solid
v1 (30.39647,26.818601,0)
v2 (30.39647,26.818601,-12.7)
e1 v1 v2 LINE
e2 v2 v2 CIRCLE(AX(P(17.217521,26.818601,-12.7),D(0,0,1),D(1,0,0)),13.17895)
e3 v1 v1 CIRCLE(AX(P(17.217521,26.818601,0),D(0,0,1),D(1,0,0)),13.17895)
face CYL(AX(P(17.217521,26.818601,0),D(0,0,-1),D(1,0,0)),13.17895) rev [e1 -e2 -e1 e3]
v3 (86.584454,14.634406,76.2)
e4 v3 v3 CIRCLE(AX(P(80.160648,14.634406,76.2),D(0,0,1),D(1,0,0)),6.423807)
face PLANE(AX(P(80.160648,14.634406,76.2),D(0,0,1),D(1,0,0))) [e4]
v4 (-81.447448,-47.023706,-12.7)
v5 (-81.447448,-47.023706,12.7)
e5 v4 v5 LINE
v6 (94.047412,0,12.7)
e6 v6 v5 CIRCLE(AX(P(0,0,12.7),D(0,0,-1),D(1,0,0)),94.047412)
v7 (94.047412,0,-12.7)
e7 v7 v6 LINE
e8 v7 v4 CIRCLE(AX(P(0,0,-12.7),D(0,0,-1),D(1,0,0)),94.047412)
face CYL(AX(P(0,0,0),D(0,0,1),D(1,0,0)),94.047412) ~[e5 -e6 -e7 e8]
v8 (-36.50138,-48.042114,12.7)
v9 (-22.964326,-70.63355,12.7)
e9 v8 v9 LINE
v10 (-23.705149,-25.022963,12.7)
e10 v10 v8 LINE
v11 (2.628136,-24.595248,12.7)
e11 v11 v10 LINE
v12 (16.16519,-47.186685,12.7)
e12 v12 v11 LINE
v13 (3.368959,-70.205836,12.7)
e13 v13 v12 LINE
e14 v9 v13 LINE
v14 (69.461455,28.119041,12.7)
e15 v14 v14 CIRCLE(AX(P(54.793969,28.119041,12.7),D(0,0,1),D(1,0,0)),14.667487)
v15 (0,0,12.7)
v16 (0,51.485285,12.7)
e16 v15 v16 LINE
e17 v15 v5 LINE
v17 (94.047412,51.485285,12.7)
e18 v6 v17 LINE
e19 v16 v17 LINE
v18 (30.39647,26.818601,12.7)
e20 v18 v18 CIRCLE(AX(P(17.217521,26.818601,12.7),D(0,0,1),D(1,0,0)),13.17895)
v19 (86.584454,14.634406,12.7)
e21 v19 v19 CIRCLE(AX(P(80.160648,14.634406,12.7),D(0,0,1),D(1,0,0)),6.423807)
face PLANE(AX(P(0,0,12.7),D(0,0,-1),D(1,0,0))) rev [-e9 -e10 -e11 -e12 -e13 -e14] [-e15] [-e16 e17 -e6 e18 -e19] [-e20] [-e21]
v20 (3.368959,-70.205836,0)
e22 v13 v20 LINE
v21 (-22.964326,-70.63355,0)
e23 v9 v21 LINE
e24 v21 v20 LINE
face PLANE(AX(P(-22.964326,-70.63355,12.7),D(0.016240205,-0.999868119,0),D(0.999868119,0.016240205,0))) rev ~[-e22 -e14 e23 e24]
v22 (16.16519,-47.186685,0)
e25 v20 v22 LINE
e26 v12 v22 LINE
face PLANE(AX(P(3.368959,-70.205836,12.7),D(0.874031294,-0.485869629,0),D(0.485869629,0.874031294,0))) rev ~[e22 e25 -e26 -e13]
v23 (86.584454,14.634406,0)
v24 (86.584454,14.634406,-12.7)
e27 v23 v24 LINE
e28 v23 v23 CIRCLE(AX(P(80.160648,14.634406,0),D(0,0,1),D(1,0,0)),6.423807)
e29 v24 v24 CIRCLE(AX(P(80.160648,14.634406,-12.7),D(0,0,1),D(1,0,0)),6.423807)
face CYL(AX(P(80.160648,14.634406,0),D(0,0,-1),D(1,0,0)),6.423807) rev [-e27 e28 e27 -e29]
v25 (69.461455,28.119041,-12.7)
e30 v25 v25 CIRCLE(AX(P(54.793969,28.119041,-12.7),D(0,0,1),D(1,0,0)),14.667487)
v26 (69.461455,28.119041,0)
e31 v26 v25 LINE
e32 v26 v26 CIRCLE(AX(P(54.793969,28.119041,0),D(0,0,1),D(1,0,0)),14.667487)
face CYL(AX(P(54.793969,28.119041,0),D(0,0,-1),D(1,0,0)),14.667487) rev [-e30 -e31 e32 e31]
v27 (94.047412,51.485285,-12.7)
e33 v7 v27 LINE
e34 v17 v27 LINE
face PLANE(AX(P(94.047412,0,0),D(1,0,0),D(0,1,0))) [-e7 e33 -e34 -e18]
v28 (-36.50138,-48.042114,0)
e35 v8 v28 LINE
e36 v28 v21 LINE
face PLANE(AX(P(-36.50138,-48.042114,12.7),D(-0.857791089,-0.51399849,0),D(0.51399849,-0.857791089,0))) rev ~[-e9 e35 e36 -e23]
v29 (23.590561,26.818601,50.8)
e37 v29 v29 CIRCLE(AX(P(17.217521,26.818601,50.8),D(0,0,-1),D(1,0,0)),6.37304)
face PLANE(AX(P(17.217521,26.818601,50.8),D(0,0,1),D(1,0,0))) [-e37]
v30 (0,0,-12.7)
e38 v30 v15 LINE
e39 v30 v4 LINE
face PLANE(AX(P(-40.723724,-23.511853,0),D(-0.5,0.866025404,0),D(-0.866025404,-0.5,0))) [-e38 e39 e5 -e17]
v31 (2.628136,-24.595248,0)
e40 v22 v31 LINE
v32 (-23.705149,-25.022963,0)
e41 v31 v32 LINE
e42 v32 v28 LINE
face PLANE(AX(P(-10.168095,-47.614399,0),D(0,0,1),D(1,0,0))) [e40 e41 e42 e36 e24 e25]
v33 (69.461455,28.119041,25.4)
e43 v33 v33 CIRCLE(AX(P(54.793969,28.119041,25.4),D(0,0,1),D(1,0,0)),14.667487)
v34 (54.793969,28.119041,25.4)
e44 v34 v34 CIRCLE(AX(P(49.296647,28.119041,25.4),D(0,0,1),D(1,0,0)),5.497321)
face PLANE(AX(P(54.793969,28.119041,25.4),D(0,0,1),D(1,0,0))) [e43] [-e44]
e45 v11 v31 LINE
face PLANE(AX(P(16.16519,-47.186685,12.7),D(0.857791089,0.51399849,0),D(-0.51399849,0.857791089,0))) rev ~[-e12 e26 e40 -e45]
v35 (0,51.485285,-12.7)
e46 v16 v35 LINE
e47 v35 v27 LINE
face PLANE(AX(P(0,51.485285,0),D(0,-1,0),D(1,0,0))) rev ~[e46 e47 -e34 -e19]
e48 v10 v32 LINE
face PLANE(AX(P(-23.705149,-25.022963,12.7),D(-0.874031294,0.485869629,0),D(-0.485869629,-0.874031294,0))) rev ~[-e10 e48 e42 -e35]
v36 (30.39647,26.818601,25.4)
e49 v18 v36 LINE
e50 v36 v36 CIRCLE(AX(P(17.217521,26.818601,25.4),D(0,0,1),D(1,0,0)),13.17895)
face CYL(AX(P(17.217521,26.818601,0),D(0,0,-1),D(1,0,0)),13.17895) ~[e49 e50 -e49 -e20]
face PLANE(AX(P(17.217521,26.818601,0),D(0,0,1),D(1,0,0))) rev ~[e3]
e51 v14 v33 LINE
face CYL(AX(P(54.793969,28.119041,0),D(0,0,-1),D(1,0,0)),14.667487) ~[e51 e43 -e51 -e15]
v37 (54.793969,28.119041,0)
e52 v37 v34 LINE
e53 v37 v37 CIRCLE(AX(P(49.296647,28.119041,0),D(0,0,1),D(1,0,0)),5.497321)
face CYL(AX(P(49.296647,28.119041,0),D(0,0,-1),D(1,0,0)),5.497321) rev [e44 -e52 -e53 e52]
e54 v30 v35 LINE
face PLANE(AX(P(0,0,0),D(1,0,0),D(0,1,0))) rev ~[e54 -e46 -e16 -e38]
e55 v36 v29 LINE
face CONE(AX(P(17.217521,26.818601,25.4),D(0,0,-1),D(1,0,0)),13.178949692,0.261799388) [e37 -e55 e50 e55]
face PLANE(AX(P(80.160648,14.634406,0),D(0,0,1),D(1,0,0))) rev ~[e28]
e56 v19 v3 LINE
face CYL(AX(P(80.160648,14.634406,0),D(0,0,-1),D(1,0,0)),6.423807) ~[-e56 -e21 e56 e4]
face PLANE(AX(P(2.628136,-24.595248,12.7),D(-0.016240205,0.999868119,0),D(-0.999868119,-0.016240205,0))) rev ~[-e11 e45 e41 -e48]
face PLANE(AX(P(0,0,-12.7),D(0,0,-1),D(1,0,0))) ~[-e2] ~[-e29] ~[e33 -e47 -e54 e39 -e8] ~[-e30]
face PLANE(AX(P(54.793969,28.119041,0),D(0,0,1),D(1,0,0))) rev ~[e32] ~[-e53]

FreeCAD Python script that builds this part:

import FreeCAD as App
import Part
import Sketcher
Q = App.Units.Quantity


def add_polygon(sketch, points):
    """Adds a closed chain of lines whose ends are joined by coincident constraints."""
    first, n = sketch.GeometryCount, len(points)
    for a, b in zip(points, points[1:] + points[:1]):
        sketch.addGeometry(Part.LineSegment(App.Vector(*a, 0), App.Vector(*b, 0)), False)
    for i in range(n):
        sketch.addConstraint(Sketcher.Constraint("Coincident", first + i, 2, first + (i + 1) % n, 1))

doc = App.newDocument("Part")
params = doc.addObject("Spreadsheet::Sheet", "Params")
for row, (alias, value) in enumerate([
    ("pad1_length", "1 in"),
    ("pad2_length", "1 in"),
    ("pad3_length", "1 in"),
    ("pad4_length", "3 in"),
    ("pad5_length", "1 in"),
    ("pad5_taper", "-15 deg"),
    ("sketch6_height", "1 in"),
    ("revolution_angle", "150 deg"),
    ("pocket1_length", "0.5 in"),
], start=1):
    params.set(f"A{row}", alias)
    params.set(f"B{row}", "=" + value)
    params.setAlias(f"B{row}", alias)

body = doc.addObject("PartDesign::Body", "Body")

sketch1 = body.newObject("Sketcher::SketchObject", "Sketch")
sketch1.AttachmentSupport = (doc.getObject("XY_Plane"), [""])
sketch1.MapMode = "FlatFace"
sketch1.addGeometry(Part.Circle(App.Vector(17, 27, 0), App.Vector(0, 0, 1), 13), False)
sketch1.addConstraint([
    Sketcher.Constraint("Diameter", 0, 26.357899),
    Sketcher.Constraint("DistanceY", -1, 1, 0, 3, 26.818601),
    Sketcher.Constraint("DistanceX", -1, 1, 0, 3, 17.217521),
])
pad1 = body.newObject("PartDesign::Pad", "Pad")
pad1.Profile = sketch1
pad1.setExpression("Length", "Params.pad1_length")
body2 = doc.addObject("PartDesign::Body", "Body001")

sketch2 = body2.newObject("Sketcher::SketchObject", "Sketch001")
sketch2.AttachmentSupport = (doc.getObject("XY_Plane001"), [""])
sketch2.MapMode = "FlatFace"
sketch2.addGeometry([
    Part.Circle(App.Vector(55, 28, 0), App.Vector(0, 0, 1), 15),
    Part.Circle(App.Vector(49, 28, 0), App.Vector(0, 0, 1), 5),
], False)
sketch2.addConstraint([
    Sketcher.Constraint("Horizontal", 0, 3, 1, 3),
    Sketcher.Constraint("Diameter", 0, 29.334973),
    Sketcher.Constraint("Diameter", 1, 10.994643),
    Sketcher.Constraint("DistanceX", -1, 1, 0, 3, 54.793969),
    Sketcher.Constraint("DistanceY", -1, 1, 0, 3, 28.119041),
    Sketcher.Constraint("DistanceX", 1, 3, 0, 3, 5.497321),
])
pad2 = body2.newObject("PartDesign::Pad", "Pad001")
pad2.Profile = sketch2
pad2.setExpression("Length", "Params.pad2_length")
body.AllowCompound = True
doc.recompute()

boolean = body.newObject("PartDesign::Boolean", "Boolean")
boolean.Type = "Fuse"
boolean.addObjects([body2])

sketch3 = body.newObject("Sketcher::SketchObject", "Sketch002")
sketch3.AttachmentSupport = (doc.getObject("XY_Plane"), [""])
sketch3.MapMode = "FlatFace"
add_polygon(sketch3, [(0, 51), (0, 0), (94, 0), (94, 51)])
sketch3.addGeometry(Part.Circle(App.Vector(80, 15, 0), App.Vector(0, 0, 1), 6), False)
sketch3.addGeometry(Part.Circle(App.Vector(17, 27, 0), App.Vector(0, 0, 1), 13), False)
sketch3.addGeometry(Part.Circle(App.Vector(55, 28, 0), App.Vector(0, 0, 1), 15), False)
sketch3.addConstraint([
    Sketcher.Constraint("Vertical", 0),
    Sketcher.Constraint("Horizontal", 1),
    Sketcher.Constraint("Vertical", 2),
    Sketcher.Constraint("Horizontal", 3),
    Sketcher.Constraint("Coincident", 0, 2, -1, 1),
    Sketcher.Constraint("Diameter", 5, 26.357899),
    Sketcher.Constraint("Diameter", 4, 12.847613),
    Sketcher.Constraint("Diameter", 6, 29.334973),
    Sketcher.Constraint("DistanceY", -1, 1, 5, 3, 26.818601),
    Sketcher.Constraint("DistanceX", 1, 1, 1, 2, 94.047412),
    Sketcher.Constraint("DistanceY", 0, 2, 0, 1, 51.485285),
    Sketcher.Constraint("DistanceX", -1, 1, 5, 3, 17.217521),
    Sketcher.Constraint("DistanceX", -1, 1, 6, 3, 54.793969),
    Sketcher.Constraint("DistanceY", -1, 1, 6, 3, 28.119041),
    Sketcher.Constraint("DistanceX", 6, 3, 4, 3, 25.366679),
    Sketcher.Constraint("DistanceY", 4, 3, 2, 2, 36.850879),
])
pad3 = body.newObject("PartDesign::Pad", "Pad002")
pad3.Profile = sketch3
pad3.setExpression("Length", "Params.pad3_length")
pad3.Midplane = True

sketch4 = body.newObject("Sketcher::SketchObject", "Sketch003")
sketch4.AttachmentSupport = (doc.getObject("XY_Plane"), [""])
sketch4.MapMode = "FlatFace"
sketch4.addGeometry(Part.Circle(App.Vector(80, 15, 0), App.Vector(0, 0, 1), 6), False)
sketch4.addConstraint([
    Sketcher.Constraint("Diameter", 0, 12.847613),
    Sketcher.Constraint("DistanceX", -1, 1, 0, 3, 80.160648),
    Sketcher.Constraint("DistanceY", -1, 1, 0, 3, 14.634406),
])
pad4 = body.newObject("PartDesign::Pad", "Pad003")
pad4.Profile = sketch4
pad4.setExpression("Length", "Params.pad4_length")

sketch5 = body.newObject("Sketcher::SketchObject", "Sketch004")
sketch5.AttachmentSupport = (doc.getObject("XY_Plane"), [""])
sketch5.MapMode = "FlatFace"
sketch5.AttachmentOffset = App.Placement(App.Vector(0, 0, 1 * 25.4), App.Rotation())
sketch5.addGeometry(Part.Circle(App.Vector(17, 27, 0), App.Vector(0, 0, 1), 13), False)
sketch5.addConstraint([
    Sketcher.Constraint("Diameter", 0, 26.357899),
    Sketcher.Constraint("DistanceY", -1, 1, 0, 3, 26.818601),
    Sketcher.Constraint("DistanceX", -1, 1, 0, 3, 17.217521),
])
pad5 = body.newObject("PartDesign::Pad", "Pad004")
pad5.Profile = sketch5
pad5.setExpression("Length", "Params.pad5_length")
pad5.setExpression("TaperAngle", "Params.pad5_taper")

sketch6 = body.newObject("Sketcher::SketchObject", "Sketch005")
sketch6.AttachmentSupport = (doc.getObject("XZ_Plane"), [""])
sketch6.MapMode = "FlatFace"
add_polygon(sketch6, [(0, 13), (0, -13), (94, -13), (94, 13)])
sketch6.addConstraint([
    Sketcher.Constraint("Vertical", 0),
    Sketcher.Constraint("Horizontal", 1),
    Sketcher.Constraint("Vertical", 2),
    Sketcher.Constraint("Horizontal", 3),
    Sketcher.Constraint("Symmetric", 0, 2, 3, 2, -1, 1),
    Sketcher.Constraint("DistanceY", 0, 2, 0, 1, Q("1 in")),
    Sketcher.Constraint("DistanceX", 1, 1, 1, 2, 94.047412),
])
sketch6.setExpression("Constraints[9]", "Params.sketch6_height")
revolution = body.newObject("PartDesign::Revolution", "Revolution")
revolution.Profile = sketch6
revolution.ReferenceAxis = (sketch6, ["V_Axis"])
revolution.setExpression("Angle", "Params.revolution_angle")
revolution.Reversed = True

sketch7 = body.newObject("Sketcher::SketchObject", "Sketch006")
sketch7.AttachmentSupport = (doc.getObject("XY_Plane"), [""])
sketch7.MapMode = "FlatFace"
sketch7.AttachmentOffset = App.Placement(App.Vector(0, 0, 0.5 * 25.4), App.Rotation())
add_polygon(sketch7, [(16, -47), (3, -25), (-24, -25), (-37, -48), (-23, -71), (3, -70)])
sketch7.addConstraint([
    Sketcher.Constraint("Parallel", 0, 3),
    Sketcher.Constraint("Parallel", 1, 4),
    Sketcher.Constraint("Parallel", 2, 5),
    Sketcher.Constraint("Equal", 0, 1),
    Sketcher.Constraint("Equal", 1, 2),
    Sketcher.Constraint("Equal", 2, 3),
    Sketcher.Constraint("Distance", 0, 26.336758),
    Sketcher.Constraint("DistanceY", 0, 2, -1, 1, 24.595248),
    Sketcher.Constraint("DistanceX", 1, 2, -1, 1, 23.705149),
    Sketcher.Constraint("DistanceX", 2, 2, -1, 1, 36.50138),
    Sketcher.Constraint("DistanceY", 3, 2, -1, 1, 70.63355),
    Sketcher.Constraint("DistanceX", -1, 1, 4, 2, 3.368959),
])
pocket1 = body.newObject("PartDesign::Pocket", "Pocket")
pocket1.Profile = sketch7
pocket1.setExpression("Length", "Params.pocket1_length")

doc.recompute()
